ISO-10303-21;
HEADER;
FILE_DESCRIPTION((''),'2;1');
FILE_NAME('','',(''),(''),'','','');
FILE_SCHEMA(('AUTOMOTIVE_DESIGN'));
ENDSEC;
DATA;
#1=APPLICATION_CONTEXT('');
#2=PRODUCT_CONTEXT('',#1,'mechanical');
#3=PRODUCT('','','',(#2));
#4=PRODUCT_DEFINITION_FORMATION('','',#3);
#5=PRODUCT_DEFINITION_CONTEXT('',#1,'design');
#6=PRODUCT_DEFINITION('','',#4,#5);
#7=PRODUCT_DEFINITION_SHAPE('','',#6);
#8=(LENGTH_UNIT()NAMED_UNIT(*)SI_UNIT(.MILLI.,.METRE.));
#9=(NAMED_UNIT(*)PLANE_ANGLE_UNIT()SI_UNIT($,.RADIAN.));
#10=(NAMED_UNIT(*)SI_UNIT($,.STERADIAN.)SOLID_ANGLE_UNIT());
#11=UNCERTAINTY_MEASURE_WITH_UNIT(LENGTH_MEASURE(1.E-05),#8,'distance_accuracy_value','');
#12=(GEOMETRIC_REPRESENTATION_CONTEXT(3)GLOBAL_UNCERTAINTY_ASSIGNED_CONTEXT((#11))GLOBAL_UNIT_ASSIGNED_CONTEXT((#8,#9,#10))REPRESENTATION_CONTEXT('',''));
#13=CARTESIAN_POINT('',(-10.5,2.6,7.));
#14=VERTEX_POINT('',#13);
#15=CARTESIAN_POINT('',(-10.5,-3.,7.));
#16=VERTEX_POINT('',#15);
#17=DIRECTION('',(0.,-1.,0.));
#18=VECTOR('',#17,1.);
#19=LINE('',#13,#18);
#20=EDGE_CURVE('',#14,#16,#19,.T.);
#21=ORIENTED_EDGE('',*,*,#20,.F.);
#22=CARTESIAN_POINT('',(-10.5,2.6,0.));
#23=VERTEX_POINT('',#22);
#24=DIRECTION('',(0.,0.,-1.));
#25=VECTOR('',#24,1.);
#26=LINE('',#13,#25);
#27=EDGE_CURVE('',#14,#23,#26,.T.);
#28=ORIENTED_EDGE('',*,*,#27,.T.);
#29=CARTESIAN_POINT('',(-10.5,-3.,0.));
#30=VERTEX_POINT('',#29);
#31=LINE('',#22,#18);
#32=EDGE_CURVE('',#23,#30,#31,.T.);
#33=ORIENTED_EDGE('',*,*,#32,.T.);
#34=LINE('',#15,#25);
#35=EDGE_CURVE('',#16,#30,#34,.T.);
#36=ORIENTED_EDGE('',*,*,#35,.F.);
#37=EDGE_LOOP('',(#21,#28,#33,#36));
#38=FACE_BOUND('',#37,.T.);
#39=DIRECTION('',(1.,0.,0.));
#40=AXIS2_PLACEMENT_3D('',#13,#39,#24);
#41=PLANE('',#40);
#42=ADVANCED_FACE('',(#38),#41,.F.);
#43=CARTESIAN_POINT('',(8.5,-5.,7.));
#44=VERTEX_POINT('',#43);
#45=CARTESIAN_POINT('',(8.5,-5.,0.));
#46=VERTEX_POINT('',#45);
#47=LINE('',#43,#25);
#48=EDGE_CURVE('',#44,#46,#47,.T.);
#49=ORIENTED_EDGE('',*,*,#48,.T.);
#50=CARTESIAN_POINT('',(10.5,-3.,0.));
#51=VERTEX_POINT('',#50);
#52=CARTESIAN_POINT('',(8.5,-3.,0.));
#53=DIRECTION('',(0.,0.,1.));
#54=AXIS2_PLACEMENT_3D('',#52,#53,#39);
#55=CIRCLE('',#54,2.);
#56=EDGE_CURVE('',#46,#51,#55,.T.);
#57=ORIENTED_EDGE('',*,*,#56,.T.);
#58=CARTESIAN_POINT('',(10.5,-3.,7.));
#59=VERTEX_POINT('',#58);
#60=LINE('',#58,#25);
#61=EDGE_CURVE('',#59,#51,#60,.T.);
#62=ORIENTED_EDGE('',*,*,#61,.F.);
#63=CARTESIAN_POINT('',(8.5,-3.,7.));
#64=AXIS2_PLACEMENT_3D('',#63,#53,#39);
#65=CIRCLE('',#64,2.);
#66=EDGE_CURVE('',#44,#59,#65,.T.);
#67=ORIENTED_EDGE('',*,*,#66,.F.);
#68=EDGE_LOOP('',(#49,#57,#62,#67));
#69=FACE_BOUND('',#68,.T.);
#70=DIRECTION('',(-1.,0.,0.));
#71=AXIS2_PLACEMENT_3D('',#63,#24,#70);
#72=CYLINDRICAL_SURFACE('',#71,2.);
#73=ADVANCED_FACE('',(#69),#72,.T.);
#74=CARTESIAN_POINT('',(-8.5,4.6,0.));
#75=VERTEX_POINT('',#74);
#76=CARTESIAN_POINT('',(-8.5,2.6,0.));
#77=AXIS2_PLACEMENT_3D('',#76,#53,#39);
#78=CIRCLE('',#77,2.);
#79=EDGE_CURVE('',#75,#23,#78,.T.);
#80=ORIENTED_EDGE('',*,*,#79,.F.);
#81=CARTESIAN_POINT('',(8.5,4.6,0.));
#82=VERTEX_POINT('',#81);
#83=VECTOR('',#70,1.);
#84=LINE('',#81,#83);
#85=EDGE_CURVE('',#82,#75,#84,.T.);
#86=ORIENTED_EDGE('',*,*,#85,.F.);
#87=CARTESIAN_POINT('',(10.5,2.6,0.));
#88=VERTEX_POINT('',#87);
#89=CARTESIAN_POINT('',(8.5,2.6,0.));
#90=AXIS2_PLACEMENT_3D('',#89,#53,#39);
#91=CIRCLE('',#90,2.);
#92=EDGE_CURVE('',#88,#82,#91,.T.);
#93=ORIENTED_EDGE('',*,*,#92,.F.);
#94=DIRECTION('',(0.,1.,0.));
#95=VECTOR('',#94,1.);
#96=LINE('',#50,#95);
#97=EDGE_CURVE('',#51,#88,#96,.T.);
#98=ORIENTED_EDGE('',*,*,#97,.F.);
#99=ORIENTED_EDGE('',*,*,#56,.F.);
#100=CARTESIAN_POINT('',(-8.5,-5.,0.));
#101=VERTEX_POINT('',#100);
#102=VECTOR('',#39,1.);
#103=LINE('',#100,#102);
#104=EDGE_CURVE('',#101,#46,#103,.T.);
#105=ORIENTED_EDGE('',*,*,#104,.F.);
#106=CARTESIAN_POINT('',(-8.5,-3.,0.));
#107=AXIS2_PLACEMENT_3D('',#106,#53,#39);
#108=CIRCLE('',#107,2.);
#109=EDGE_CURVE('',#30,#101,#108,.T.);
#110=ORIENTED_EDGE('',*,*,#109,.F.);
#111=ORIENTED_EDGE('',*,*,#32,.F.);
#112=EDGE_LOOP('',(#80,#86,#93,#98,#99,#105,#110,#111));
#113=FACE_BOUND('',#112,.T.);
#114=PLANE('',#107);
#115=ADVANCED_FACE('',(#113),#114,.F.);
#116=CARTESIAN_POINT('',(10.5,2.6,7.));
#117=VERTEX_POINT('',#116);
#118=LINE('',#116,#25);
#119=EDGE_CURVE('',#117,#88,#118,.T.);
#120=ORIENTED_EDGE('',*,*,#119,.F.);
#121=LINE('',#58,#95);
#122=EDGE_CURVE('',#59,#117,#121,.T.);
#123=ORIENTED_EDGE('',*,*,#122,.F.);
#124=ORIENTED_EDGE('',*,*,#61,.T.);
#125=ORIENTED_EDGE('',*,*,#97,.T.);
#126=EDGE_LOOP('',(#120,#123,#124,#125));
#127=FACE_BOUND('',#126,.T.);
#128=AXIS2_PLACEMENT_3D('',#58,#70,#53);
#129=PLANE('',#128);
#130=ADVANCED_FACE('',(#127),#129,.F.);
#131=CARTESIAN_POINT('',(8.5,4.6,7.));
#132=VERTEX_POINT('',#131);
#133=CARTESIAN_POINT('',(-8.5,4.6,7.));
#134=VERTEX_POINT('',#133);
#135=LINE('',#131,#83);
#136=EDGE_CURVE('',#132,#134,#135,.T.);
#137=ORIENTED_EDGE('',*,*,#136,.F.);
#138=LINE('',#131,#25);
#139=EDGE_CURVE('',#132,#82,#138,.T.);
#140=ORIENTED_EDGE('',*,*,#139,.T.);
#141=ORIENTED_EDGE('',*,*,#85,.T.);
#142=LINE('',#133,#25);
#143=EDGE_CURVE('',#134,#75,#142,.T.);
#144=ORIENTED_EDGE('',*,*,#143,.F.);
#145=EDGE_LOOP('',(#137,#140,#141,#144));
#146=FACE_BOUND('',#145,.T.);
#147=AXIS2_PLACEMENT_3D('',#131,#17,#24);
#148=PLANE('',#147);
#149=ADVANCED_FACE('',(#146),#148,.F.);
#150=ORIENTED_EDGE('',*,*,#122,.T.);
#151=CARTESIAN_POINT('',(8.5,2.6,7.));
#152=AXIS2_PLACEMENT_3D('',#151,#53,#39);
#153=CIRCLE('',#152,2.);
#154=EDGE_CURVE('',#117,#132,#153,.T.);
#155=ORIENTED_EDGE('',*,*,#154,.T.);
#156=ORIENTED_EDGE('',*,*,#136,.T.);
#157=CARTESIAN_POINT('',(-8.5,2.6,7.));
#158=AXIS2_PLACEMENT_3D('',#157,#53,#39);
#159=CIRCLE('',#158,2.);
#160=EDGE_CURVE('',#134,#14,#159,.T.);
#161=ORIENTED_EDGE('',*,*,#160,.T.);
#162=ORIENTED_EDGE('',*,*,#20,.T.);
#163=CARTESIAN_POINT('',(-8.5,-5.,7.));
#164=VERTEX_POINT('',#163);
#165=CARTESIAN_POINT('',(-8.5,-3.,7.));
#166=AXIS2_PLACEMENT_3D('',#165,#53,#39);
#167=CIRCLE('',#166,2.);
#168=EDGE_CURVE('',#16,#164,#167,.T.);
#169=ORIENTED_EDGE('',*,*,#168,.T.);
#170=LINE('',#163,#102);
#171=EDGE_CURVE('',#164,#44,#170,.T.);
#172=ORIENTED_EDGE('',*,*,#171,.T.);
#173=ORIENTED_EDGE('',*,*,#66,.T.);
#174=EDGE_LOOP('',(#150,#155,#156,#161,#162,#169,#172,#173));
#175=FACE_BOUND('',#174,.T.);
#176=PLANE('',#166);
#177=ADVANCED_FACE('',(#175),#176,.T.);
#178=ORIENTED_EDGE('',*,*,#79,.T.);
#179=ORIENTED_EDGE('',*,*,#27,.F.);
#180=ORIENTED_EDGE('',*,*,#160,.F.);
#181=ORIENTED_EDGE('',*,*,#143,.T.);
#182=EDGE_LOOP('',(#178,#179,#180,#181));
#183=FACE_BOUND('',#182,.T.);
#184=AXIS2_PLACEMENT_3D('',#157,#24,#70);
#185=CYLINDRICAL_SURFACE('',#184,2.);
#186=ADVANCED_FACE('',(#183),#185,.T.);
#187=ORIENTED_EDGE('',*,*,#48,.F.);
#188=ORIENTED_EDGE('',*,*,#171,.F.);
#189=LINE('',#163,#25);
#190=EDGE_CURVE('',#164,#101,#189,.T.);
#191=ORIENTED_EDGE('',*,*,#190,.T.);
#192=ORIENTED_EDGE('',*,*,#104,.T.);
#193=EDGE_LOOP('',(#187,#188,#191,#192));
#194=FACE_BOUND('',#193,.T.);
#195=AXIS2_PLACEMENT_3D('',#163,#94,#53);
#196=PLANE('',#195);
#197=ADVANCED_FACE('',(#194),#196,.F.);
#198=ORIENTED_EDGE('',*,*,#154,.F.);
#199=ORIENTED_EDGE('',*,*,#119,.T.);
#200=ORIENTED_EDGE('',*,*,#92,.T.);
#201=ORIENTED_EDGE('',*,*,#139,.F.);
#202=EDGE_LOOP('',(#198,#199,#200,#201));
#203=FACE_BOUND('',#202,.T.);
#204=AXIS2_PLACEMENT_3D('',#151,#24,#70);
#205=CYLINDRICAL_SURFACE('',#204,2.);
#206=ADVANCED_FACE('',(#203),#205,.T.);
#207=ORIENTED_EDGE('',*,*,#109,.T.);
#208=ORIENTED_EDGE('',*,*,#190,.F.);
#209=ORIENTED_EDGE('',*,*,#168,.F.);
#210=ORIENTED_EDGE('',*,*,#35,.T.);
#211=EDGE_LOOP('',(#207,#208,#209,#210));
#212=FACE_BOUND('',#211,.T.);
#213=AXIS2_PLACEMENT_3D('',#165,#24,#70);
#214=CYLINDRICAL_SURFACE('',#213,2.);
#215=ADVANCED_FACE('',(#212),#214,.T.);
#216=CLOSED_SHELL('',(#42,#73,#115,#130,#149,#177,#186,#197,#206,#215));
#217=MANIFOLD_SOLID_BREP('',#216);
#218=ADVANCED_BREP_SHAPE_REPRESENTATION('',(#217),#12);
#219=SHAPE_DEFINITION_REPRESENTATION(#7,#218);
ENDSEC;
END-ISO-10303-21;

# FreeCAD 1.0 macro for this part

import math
import FreeCAD as App
import Part
import Sketcher
from FreeCAD import Vector
Q = App.Units.Quantity

doc = App.newDocument("Part")
body = doc.addObject("PartDesign::Body", "Body")

sketch1 = body.newObject("Sketcher::SketchObject", "Sketch")
sketch1.AttachmentSupport = (doc.getObject("XY_Plane"), [""])
sketch1.MapMode = "FlatFace"
sketch1.addGeometry([
    Part.LineSegment(Vector(-8.5, -5, 0), Vector(8.5, -5, 0)),
    Part.ArcOfCircle(Part.Circle(Vector(8.5, -3, 0), Vector(0, 0, 1), 2), math.radians(-90), math.radians(0)),
    Part.LineSegment(Vector(10.5, -3, 0), Vector(10.5, 2.6, 0)),
    Part.ArcOfCircle(Part.Circle(Vector(8.5, 2.6, 0), Vector(0, 0, 1), 2), math.radians(0), math.radians(90)),
    Part.LineSegment(Vector(8.5, 4.6, 0), Vector(-8.5, 4.6, 0)),
    Part.ArcOfCircle(Part.Circle(Vector(-8.5, 2.6, 0), Vector(0, 0, 1), 2), math.radians(90), math.radians(180)),
    Part.LineSegment(Vector(-10.5, 2.6, 0), Vector(-10.5, -3, 0)),
    Part.ArcOfCircle(Part.Circle(Vector(-8.5, -3, 0), Vector(0, 0, 1), 2), math.radians(-180), math.radians(-90)),
], False)
sketch1.addConstraint([
    Sketcher.Constraint("Tangent", 0, 2, 1, 1),
    Sketcher.Constraint("Tangent", 1, 2, 2, 1),
    Sketcher.Constraint("Tangent", 2, 2, 3, 1),
    Sketcher.Constraint("Tangent", 3, 2, 4, 1),
    Sketcher.Constraint("Tangent", 4, 2, 5, 1),
    Sketcher.Constraint("Tangent", 5, 2, 6, 1),
    Sketcher.Constraint("Tangent", 6, 2, 7, 1),
    Sketcher.Constraint("Tangent", 7, 2, 0, 1),
    Sketcher.Constraint("Horizontal", 0),
    Sketcher.Constraint("Vertical", 2),
    Sketcher.Constraint("Horizontal", 4),
    Sketcher.Constraint("Vertical", 6),
    Sketcher.Constraint("Equal", 1, 3),
    Sketcher.Constraint("Equal", 3, 5),
    Sketcher.Constraint("Equal", 5, 7),
    Sketcher.Constraint("Radius", 1, Q("2 mm")),
    Sketcher.Constraint("DistanceX", 0, 1, 0, 2, Q("17 mm")),
    Sketcher.Constraint("DistanceY", 2, 1, 2, 2, Q("5.6 mm")),
    Sketcher.Constraint("DistanceY", 1, 3, -1, 1, Q("3 mm")),
    Sketcher.Constraint("DistanceX", -1, 1, 1, 3, Q("8.5 mm")),
])
pad1 = body.newObject("PartDesign::Pad", "Pad")
pad1.Profile = sketch1
pad1.Length = 7

doc.recompute()
